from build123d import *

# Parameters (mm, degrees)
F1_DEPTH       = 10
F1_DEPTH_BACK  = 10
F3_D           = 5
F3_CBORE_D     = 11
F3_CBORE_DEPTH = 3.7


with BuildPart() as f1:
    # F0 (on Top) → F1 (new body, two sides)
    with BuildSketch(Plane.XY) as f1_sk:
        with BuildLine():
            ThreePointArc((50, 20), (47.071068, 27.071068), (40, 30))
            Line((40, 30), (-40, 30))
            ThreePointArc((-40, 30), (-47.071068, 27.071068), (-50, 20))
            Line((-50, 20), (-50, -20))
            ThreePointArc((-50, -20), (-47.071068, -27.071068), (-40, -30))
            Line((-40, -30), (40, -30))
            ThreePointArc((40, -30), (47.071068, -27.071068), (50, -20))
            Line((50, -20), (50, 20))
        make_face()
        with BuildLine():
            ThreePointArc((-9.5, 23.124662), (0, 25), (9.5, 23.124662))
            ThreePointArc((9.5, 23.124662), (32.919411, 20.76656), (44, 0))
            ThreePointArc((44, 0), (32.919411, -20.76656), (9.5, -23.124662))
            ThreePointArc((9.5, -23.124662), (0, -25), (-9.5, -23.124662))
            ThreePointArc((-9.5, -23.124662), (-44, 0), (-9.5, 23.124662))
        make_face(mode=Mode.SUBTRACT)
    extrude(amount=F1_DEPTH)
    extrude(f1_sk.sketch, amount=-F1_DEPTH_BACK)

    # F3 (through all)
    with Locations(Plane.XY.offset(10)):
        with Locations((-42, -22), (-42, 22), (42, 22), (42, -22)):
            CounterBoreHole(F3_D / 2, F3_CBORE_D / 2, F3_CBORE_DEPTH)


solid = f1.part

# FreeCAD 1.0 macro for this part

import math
import FreeCAD as App
import Part
import Sketcher

V = App.Vector
Q = App.Units.Quantity

doc = App.newDocument("Part")
params = doc.addObject("Spreadsheet::Sheet", "Params")
for row, (alias, value) in enumerate([
    ("sketch1_radius", "9.999999 mm"),
    ("sketch1_radius2", "25 mm"),
    ("sketch1_width", "80 mm"),
    ("sketch1_height", "40 mm"),
    ("pad1_length", "10 mm"),
    ("pad1_length2", "10 mm"),
    ("sketch2_diameter", "5 mm"),
    ("hole_diameter", "5 mm"),
    ("hole_cbore_diameter", "11 mm"),
    ("hole_cbore_depth", "3.7 mm"),
], start=1):
    params.set(f"A{row}", alias)
    params.set(f"B{row}", "=" + value)
    params.setAlias(f"B{row}", alias)

body = doc.addObject("PartDesign::Body", "Body")

# Sketch on XY plane
sketch1 = doc.addObject("Sketcher::SketchObject", "Sketch")
body.addObject(sketch1)
sketch1.AttachmentSupport = (doc.XY_Plane, [""])
sketch1.MapMode = "FlatFace"
sketch1.addGeometry([
    Part.ArcOfCircle(Part.Circle(V(40.000001, 20.000001, 0), V(0, 0, 1), 9.999999), math.radians(-0.000004), math.radians(90.000004)),  # 0
    Part.LineSegment(V(40, 30, 0), V(-40, 30, 0)),  # 1
    Part.ArcOfCircle(Part.Circle(V(-40.000001, 20.000001, 0), V(0, 0, 1), 9.999999), math.radians(89.999996), math.radians(180.000004)),  # 2
    Part.LineSegment(V(-50, 20, 0), V(-50, -20, 0)),  # 3
    Part.ArcOfCircle(Part.Circle(V(-40.000001, -20.000001, 0), V(0, 0, 1), 9.999999), math.radians(179.999996), math.radians(270.000004)),  # 4
    Part.LineSegment(V(-40, -30, 0), V(40, -30, 0)),  # 5
    Part.ArcOfCircle(Part.Circle(V(40.000001, -20.000001, 0), V(0, 0, 1), 9.999999), math.radians(-90.000004), math.radians(0.000004)),  # 6
    Part.LineSegment(V(50, -20, 0), V(50, 20, 0)),  # 7
    Part.ArcOfCircle(Part.Circle(V(-19, 0, 0), V(0, 0, 1), 25), math.radians(67.666317), math.radians(292.333683)),  # 8
    Part.ArcOfCircle(Part.Circle(V(0, 0.000002, 0), V(0, 0, 1), 24.999998), math.radians(67.666315), math.radians(112.333685)),  # 9
    Part.ArcOfCircle(Part.Circle(V(19.000001, 0.000001, 0), V(0, 0, 1), 24.999999), math.radians(-0.000002), math.radians(112.333685)),  # 10
    Part.ArcOfCircle(Part.Circle(V(19.000001, -0.000001, 0), V(0, 0, 1), 24.999999), math.radians(-112.333685), math.radians(0.000002)),  # 11
    Part.ArcOfCircle(Part.Circle(V(0, -0.000002, 0), V(0, 0, 1), 24.999998), math.radians(-112.333685), math.radians(-67.666315)),  # 12
], False)
sketch1.addConstraint([
    Sketcher.Constraint("Tangent", 0, 2, 1, 1),
    Sketcher.Constraint("Tangent", 1, 2, 2, 1),
    Sketcher.Constraint("Tangent", 2, 2, 3, 1),
    Sketcher.Constraint("Tangent", 3, 2, 4, 1),
    Sketcher.Constraint("Tangent", 4, 2, 5, 1),
    Sketcher.Constraint("Tangent", 5, 2, 6, 1),
    Sketcher.Constraint("Tangent", 6, 2, 7, 1),
    Sketcher.Constraint("Tangent", 7, 2, 0, 1),
    Sketcher.Constraint("Coincident", 8, 1, 9, 2),
    Sketcher.Constraint("Coincident", 9, 1, 10, 2),
    Sketcher.Constraint("Tangent", 10, 1, 11, 2),
    Sketcher.Constraint("Coincident", 11, 1, 12, 2),
    Sketcher.Constraint("Coincident", 12, 1, 8, 2),
    Sketcher.Constraint("Horizontal", 1),
    Sketcher.Constraint("Vertical", 3),
    Sketcher.Constraint("Horizontal", 5),
    Sketcher.Constraint("Vertical", 7),
    Sketcher.Constraint("Coincident", 9, 3, -1, 1),
    Sketcher.Constraint("Coincident", 12, 3, -1, 1),
    Sketcher.Constraint("Equal", 0, 2),
    Sketcher.Constraint("Equal", 2, 4),
    Sketcher.Constraint("Equal", 4, 6),
    Sketcher.Constraint("Equal", 8, 9),
    Sketcher.Constraint("Equal", 9, 10),
    Sketcher.Constraint("Equal", 10, 11),
    Sketcher.Constraint("Equal", 11, 12),
    Sketcher.Constraint("Symmetric", 0, 3, 4, 3, -1, 1),
    Sketcher.Constraint("Symmetric", 8, 3, 10, 3, -1, 1),
    Sketcher.Constraint("PointOnObject", 8, 3, -1),
    Sketcher.Constraint("PointOnObject", 10, 1, -1),
    Sketcher.Constraint("Radius", 0, Q("9.999999 mm")),
    Sketcher.Constraint("Radius", 8, Q("25 mm")),
    Sketcher.Constraint("DistanceX", 1, 2, 1, 1, Q("80 mm")),
    Sketcher.Constraint("DistanceY", 3, 2, 3, 1, Q("40 mm")),
    Sketcher.Constraint("DistanceX", 8, 3, -1, 1, Q("19 mm")),
])
sketch1.setExpression("Constraints[30]", "Params.sketch1_radius")
sketch1.setExpression("Constraints[31]", "Params.sketch1_radius2")
sketch1.setExpression("Constraints[32]", "Params.sketch1_width")
sketch1.setExpression("Constraints[33]", "Params.sketch1_height")
pad1 = doc.addObject("PartDesign::Pad", "Pad")
body.addObject(pad1)
pad1.Profile = sketch1
pad1.Type = "TwoLengths"
pad1.setExpression("Length", "Params.pad1_length")
pad1.setExpression("Length2", "Params.pad1_length2")

# Sketch on XY plane
sketch2 = doc.addObject("Sketcher::SketchObject", "Sketch001")
body.addObject(sketch2)
sketch2.AttachmentSupport = (doc.XY_Plane, [""])
sketch2.MapMode = "FlatFace"
sketch2.AttachmentOffset = App.Placement(V(0, 0, 10), App.Rotation())
sketch2.addGeometry([
    Part.Circle(V(-42, -22, 0), V(0, 0, 1), 2.5),
    Part.Circle(V(-42, 22, 0), V(0, 0, 1), 2.5),
    Part.Circle(V(42, 22, 0), V(0, 0, 1), 2.5),
    Part.Circle(V(42, -22, 0), V(0, 0, 1), 2.5),
], False)
sketch2.addConstraint([
    Sketcher.Constraint("Equal", 0, 1),
    Sketcher.Constraint("Equal", 1, 2),
    Sketcher.Constraint("Equal", 2, 3),
    Sketcher.Constraint("Symmetric", 0, 3, 2, 3, -1, 1),
    Sketcher.Constraint("Symmetric", 1, 3, 3, 3, -1, 1),
    Sketcher.Constraint("Symmetric", 1, 3, 2, 3, -2),
    Sketcher.Constraint("Diameter", 0, Q("5 mm")),
    Sketcher.Constraint("DistanceX", 0, 3, -1, 1, Q("42 mm")),
    Sketcher.Constraint("DistanceY", 0, 3, -1, 1, Q("22 mm")),
])
sketch2.setExpression("Constraints[6]", "Params.sketch2_diameter")
doc.recompute()
hole = doc.addObject("PartDesign::Hole", "Hole")
body.addObject(hole)
hole.Profile = sketch2
hole.ThreadType = "None"
hole.setExpression("Diameter", "Params.hole_diameter")
hole.DepthType = "ThroughAll"
hole.HoleCutType = "Counterbore"
hole.setExpression("HoleCutDiameter", "Params.hole_cbore_diameter")
hole.setExpression("HoleCutDepth", "Params.hole_cbore_depth")

doc.recompute()
